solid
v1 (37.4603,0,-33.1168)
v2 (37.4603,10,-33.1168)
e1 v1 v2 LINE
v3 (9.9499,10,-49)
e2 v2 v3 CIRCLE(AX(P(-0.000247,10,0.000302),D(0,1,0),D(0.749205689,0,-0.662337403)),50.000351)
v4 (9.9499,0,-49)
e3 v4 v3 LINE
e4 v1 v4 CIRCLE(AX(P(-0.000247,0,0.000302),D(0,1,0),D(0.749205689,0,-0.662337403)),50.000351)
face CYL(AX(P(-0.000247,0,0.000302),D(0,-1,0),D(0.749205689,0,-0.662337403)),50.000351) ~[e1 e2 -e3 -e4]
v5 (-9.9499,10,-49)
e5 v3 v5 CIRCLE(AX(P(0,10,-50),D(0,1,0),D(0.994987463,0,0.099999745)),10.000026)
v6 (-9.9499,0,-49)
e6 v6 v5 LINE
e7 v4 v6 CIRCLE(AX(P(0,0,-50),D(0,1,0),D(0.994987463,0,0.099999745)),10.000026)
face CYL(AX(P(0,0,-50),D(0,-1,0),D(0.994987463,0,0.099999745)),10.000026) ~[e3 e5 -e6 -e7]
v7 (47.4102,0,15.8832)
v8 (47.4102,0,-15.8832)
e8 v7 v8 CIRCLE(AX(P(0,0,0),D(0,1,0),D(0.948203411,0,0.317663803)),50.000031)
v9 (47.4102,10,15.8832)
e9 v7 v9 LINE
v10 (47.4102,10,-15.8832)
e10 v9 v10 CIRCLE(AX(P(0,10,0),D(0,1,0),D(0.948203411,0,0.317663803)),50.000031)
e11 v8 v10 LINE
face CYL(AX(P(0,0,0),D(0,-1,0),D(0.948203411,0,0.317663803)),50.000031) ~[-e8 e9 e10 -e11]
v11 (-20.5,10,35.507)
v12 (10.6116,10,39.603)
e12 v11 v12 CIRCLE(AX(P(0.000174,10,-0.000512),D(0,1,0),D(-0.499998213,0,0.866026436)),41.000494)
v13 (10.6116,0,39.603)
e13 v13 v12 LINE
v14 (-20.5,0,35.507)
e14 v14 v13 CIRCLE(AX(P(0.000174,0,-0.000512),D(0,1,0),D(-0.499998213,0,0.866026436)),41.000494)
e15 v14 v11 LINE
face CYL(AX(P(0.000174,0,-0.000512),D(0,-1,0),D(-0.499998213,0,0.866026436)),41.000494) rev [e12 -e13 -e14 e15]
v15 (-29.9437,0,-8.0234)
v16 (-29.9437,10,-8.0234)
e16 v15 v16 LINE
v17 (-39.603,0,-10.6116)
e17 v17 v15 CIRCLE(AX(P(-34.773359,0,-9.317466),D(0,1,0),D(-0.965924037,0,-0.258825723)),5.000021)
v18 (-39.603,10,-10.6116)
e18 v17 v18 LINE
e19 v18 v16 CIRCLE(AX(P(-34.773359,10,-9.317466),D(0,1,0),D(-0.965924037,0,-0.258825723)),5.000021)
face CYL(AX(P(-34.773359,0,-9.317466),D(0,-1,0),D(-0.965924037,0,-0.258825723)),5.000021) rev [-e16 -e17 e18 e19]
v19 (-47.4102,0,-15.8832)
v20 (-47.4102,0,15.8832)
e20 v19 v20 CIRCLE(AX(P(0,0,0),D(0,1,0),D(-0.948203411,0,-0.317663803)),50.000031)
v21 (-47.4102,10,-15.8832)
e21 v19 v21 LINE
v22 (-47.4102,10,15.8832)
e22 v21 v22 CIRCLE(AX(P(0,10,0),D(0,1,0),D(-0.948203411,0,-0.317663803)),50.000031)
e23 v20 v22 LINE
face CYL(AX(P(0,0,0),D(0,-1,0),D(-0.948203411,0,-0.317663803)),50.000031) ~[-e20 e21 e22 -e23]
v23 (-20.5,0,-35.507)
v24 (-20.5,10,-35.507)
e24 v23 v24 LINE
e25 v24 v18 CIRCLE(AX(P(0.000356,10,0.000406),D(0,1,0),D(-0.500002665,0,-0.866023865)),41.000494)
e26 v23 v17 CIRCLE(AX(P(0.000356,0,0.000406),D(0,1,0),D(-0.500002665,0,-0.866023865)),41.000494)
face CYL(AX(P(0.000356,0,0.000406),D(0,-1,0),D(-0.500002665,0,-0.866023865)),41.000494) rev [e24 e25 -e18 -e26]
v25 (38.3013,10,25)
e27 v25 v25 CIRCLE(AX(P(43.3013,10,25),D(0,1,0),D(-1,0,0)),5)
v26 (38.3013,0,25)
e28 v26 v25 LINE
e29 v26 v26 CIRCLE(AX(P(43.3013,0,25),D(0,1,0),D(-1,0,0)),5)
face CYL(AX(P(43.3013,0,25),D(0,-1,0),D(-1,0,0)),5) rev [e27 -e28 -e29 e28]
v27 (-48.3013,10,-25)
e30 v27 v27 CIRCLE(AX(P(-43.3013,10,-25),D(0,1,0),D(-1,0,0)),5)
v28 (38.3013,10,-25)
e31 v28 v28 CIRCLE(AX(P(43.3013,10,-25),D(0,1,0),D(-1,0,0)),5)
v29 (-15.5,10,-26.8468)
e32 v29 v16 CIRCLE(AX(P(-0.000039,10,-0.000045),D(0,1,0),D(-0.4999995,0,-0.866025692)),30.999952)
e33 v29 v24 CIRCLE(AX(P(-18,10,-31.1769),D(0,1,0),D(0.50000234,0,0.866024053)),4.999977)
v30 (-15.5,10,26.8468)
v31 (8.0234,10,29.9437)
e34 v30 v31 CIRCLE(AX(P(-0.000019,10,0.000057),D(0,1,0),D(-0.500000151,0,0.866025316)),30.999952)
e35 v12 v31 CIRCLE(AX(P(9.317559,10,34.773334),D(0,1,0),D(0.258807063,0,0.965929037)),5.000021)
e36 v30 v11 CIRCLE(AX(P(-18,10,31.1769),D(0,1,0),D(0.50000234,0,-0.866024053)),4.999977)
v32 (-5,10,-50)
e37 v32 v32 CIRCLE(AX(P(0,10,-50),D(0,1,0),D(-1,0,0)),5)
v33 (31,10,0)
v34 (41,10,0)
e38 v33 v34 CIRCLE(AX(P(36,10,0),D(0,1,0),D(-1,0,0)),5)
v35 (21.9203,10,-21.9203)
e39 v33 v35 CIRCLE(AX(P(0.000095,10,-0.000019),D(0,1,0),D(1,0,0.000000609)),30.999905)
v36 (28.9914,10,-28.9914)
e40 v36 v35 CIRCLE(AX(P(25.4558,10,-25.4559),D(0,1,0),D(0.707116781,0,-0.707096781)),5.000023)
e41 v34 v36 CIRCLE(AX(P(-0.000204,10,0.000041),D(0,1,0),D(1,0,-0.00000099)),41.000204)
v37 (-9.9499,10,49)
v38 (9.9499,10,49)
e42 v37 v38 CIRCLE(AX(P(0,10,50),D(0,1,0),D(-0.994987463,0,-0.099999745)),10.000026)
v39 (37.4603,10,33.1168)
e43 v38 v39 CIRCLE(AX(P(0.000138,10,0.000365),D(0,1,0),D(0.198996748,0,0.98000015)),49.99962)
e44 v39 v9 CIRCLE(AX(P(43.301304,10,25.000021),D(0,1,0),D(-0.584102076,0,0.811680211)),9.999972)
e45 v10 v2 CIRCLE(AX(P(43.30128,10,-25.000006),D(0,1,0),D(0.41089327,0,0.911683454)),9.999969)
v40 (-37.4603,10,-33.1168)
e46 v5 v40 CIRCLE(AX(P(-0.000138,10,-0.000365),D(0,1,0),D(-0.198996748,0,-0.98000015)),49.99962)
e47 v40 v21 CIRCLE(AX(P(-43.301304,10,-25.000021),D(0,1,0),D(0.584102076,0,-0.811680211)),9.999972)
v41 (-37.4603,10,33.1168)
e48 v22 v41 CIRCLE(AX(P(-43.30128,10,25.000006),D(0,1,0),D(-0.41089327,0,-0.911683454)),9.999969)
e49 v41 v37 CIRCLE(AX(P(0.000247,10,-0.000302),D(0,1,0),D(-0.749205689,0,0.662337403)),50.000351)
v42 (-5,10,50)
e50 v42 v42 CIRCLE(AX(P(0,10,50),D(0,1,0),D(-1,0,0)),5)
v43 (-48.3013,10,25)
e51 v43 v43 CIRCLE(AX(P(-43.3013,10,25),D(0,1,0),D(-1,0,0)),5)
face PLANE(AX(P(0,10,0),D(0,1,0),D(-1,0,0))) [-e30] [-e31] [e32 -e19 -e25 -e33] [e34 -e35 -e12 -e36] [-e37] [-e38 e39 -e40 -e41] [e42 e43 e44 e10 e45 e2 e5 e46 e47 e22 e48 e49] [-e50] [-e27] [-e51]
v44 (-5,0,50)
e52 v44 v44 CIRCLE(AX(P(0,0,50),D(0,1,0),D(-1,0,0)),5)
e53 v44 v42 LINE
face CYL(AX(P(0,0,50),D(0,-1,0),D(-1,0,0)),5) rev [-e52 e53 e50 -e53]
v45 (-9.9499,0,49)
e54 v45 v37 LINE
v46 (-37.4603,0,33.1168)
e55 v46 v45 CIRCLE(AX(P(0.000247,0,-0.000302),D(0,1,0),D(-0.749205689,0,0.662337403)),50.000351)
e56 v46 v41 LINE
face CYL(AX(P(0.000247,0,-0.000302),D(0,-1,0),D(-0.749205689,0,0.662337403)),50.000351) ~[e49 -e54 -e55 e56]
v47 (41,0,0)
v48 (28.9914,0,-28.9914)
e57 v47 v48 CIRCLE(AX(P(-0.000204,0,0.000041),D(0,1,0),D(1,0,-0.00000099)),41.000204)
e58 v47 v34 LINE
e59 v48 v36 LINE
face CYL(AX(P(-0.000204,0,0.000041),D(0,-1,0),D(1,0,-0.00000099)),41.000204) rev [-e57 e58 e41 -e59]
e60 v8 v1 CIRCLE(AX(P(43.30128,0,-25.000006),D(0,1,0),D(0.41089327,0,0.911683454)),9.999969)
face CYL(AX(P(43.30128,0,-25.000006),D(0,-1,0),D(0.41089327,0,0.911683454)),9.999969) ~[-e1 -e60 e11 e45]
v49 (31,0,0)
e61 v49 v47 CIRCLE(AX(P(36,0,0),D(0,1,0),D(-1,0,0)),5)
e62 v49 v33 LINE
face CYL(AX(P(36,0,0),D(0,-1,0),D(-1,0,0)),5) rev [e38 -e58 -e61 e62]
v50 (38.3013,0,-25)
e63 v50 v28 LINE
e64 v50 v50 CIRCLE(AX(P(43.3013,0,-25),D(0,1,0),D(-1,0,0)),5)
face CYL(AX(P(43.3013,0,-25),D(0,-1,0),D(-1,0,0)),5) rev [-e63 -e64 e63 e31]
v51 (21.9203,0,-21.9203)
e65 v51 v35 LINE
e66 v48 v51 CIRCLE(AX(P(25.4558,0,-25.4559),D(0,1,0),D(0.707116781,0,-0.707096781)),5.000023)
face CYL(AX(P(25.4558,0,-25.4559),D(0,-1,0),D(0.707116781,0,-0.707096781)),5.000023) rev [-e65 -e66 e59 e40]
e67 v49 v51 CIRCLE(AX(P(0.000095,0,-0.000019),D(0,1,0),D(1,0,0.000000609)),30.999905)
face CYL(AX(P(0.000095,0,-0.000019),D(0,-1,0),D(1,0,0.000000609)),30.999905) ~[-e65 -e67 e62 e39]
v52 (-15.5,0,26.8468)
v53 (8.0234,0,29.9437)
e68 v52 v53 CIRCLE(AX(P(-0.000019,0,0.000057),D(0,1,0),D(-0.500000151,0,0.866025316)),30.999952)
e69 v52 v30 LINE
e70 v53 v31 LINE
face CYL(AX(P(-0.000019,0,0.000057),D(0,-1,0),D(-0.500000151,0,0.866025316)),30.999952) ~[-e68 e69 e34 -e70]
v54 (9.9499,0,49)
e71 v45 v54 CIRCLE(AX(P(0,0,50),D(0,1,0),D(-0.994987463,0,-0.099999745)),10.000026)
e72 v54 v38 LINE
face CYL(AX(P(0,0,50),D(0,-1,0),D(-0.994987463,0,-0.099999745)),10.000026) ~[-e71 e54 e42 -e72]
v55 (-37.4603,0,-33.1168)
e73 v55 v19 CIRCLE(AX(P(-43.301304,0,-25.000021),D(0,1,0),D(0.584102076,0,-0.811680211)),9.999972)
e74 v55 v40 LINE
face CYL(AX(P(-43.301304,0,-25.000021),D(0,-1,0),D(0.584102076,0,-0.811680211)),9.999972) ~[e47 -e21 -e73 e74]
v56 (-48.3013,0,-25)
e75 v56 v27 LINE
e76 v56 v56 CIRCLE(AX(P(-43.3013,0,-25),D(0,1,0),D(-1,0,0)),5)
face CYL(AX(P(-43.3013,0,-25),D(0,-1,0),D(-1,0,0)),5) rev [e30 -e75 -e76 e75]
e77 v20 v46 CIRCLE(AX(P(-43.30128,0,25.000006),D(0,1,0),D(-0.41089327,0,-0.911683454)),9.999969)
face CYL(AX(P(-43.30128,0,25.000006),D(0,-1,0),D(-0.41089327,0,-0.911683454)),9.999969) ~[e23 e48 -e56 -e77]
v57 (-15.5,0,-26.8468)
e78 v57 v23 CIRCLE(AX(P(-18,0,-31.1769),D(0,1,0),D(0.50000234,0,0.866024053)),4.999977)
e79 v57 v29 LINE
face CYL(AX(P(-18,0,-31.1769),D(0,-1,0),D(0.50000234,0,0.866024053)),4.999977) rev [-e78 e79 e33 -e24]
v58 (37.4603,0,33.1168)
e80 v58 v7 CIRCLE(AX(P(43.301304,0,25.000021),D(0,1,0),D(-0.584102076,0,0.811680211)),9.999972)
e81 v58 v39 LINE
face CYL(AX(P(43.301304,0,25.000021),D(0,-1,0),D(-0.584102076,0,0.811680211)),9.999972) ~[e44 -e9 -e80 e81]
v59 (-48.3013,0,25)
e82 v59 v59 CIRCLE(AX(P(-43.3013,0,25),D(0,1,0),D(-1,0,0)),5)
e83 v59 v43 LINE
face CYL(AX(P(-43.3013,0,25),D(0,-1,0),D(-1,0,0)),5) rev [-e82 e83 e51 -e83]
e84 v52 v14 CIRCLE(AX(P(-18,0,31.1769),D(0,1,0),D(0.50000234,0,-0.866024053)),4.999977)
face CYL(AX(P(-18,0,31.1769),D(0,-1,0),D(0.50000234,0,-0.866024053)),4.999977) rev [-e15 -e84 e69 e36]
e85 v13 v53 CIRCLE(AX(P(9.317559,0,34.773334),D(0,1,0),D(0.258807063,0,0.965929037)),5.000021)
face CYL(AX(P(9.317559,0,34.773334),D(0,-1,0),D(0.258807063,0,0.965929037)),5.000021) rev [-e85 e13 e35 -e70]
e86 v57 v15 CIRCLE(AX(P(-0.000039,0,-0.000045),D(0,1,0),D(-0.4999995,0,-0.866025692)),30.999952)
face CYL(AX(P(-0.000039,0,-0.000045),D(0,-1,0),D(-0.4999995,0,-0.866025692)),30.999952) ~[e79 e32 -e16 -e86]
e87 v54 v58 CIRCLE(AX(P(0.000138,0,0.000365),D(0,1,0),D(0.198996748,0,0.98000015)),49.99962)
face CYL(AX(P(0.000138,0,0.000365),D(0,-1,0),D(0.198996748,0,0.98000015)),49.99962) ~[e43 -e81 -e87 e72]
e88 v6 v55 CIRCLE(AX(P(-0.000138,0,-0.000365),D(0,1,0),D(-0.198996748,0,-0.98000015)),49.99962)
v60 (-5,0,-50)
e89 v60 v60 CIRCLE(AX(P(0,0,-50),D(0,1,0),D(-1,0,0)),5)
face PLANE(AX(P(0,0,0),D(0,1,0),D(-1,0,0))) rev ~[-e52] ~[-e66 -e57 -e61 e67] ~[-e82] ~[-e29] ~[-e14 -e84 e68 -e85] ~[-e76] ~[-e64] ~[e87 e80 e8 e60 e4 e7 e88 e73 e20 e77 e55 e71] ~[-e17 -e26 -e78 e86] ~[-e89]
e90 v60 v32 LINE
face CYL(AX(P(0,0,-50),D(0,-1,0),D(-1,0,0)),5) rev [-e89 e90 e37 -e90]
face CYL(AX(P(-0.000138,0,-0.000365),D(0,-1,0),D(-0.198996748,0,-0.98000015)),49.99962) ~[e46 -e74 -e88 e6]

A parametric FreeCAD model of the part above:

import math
import FreeCAD as App
import Part
import Sketcher

V = App.Vector
Q = App.Units.Quantity

doc = App.newDocument("Part")
body = doc.addObject("PartDesign::Body", "Body")

# Sketch on XZ plane
sketch1 = body.newObject("Sketcher::SketchObject", "Sketch")
sketch1.AttachmentSupport = (doc.getObject("XZ_Plane"), [""])
sketch1.MapMode = "FlatFace"
sketch1.addGeometry([
    Part.ArcOfCircle(Part.Circle(V(0, 0, 0), V(0, 0, 1), 50), math.radians(-79), math.radians(-41)),  # 0
    Part.ArcOfCircle(Part.Circle(V(0, -50, 0), V(0, 0, 1), 10), math.radians(174), math.radians(366)),  # 1
    Part.ArcOfCircle(Part.Circle(V(0, 0, 0), V(0, 0, 1), 50), math.radians(-139), math.radians(-101)),  # 2
    Part.ArcOfCircle(Part.Circle(V(-43.3, -25, 0), V(0, 0, 1), 10), math.radians(114), math.radians(306)),  # 3
    Part.ArcOfCircle(Part.Circle(V(0, 0, 0), V(0, 0, 1), 50), math.radians(161), math.radians(199)),  # 4
    Part.ArcOfCircle(Part.Circle(V(-43.3, 25, 0), V(0, 0, 1), 10), math.radians(54), math.radians(246)),  # 5
    Part.ArcOfCircle(Part.Circle(V(0, 0, 0), V(0, 0, 1), 50), math.radians(101), math.radians(139)),  # 6
    Part.ArcOfCircle(Part.Circle(V(0, 50, 0), V(0, 0, 1), 10), math.radians(-6), math.radians(186)),  # 7
    Part.ArcOfCircle(Part.Circle(V(0, 0, 0), V(0, 0, 1), 50), math.radians(41), math.radians(79)),  # 8
    Part.ArcOfCircle(Part.Circle(V(43.3, 25, 0), V(0, 0, 1), 10), math.radians(-66), math.radians(126)),  # 9
    Part.ArcOfCircle(Part.Circle(V(0, 0, 0), V(0, 0, 1), 50), math.radians(-19), math.radians(19)),  # 10
    Part.ArcOfCircle(Part.Circle(V(43.3, -25, 0), V(0, 0, 1), 10), math.radians(-126), math.radians(66)),  # 11
    Part.Circle(V(43.3, -25, 0), V(0, 0, 1), 5),  # 12
    Part.ArcOfCircle(Part.Circle(V(36, 0, 0), V(0, 0, 1), 5), math.radians(0), math.radians(180)),  # 13
    Part.ArcOfCircle(Part.Circle(V(0, 0, 0), V(0, 0, 1), 31), math.radians(-45), math.radians(0)),  # 14
    Part.ArcOfCircle(Part.Circle(V(25.5, -25.5, 0), V(0, 0, 1), 5), math.radians(135), math.radians(315)),  # 15
    Part.ArcOfCircle(Part.Circle(V(0, 0, 0), V(0, 0, 1), 41), math.radians(-45), math.radians(0)),  # 16
    Part.Circle(V(0, -50, 0), V(0, 0, 1), 5),  # 17
    Part.ArcOfCircle(Part.Circle(V(-18, -31.2, 0), V(0, 0, 1), 5), math.radians(-120), math.radians(60)),  # 18
    Part.ArcOfCircle(Part.Circle(V(0, 0, 0), V(0, 0, 1), 31), math.radians(-165), math.radians(-120)),  # 19
    Part.ArcOfCircle(Part.Circle(V(-34.8, -9.3, 0), V(0, 0, 1), 5), math.radians(15), math.radians(195)),  # 20
    Part.ArcOfCircle(Part.Circle(V(0, 0, 0), V(0, 0, 1), 41), math.radians(-165), math.radians(-120)),  # 21
    Part.Circle(V(-43.3, -25, 0), V(0, 0, 1), 5),  # 22
    Part.Circle(V(43.3, 25, 0), V(0, 0, 1), 5),  # 23
    Part.Circle(V(-43.3, 25, 0), V(0, 0, 1), 5),  # 24
    Part.ArcOfCircle(Part.Circle(V(-18, 31.2, 0), V(0, 0, 1), 5), math.radians(120), math.radians(300)),  # 25
    Part.ArcOfCircle(Part.Circle(V(0, 0, 0), V(0, 0, 1), 31), math.radians(75), math.radians(120)),  # 26
    Part.ArcOfCircle(Part.Circle(V(9.3, 34.8, 0), V(0, 0, 1), 5), math.radians(-105), math.radians(75)),  # 27
    Part.ArcOfCircle(Part.Circle(V(0, 0, 0), V(0, 0, 1), 41), math.radians(75), math.radians(120)),  # 28
    Part.Circle(V(0, 50, 0), V(0, 0, 1), 5),  # 29
], False)
sketch1.addConstraint([
    Sketcher.Constraint("Coincident", 0, 1, 1, 2),
    Sketcher.Constraint("Coincident", 1, 1, 2, 2),
    Sketcher.Constraint("Coincident", 2, 1, 3, 2),
    Sketcher.Constraint("Coincident", 3, 1, 4, 2),
    Sketcher.Constraint("Coincident", 4, 1, 5, 2),
    Sketcher.Constraint("Coincident", 5, 1, 6, 2),
    Sketcher.Constraint("Coincident", 6, 1, 7, 2),
    Sketcher.Constraint("Coincident", 7, 1, 8, 2),
    Sketcher.Constraint("Coincident", 8, 1, 9, 2),
    Sketcher.Constraint("Coincident", 9, 1, 10, 2),
    Sketcher.Constraint("Coincident", 10, 1, 11, 2),
    Sketcher.Constraint("Coincident", 11, 1, 0, 2),
    Sketcher.Constraint("Tangent", 13, 2, 14, 2),
    Sketcher.Constraint("Tangent", 14, 1, 15, 1),
    Sketcher.Constraint("Tangent", 15, 2, 16, 1),
    Sketcher.Constraint("Tangent", 16, 2, 13, 1),
    Sketcher.Constraint("Tangent", 18, 2, 19, 2),
    Sketcher.Constraint("Tangent", 19, 1, 20, 1),
    Sketcher.Constraint("Tangent", 20, 2, 21, 1),
    Sketcher.Constraint("Tangent", 21, 2, 18, 1),
    Sketcher.Constraint("Tangent", 25, 2, 26, 2),
    Sketcher.Constraint("Tangent", 26, 1, 27, 1),
    Sketcher.Constraint("Tangent", 27, 2, 28, 1),
    Sketcher.Constraint("Tangent", 28, 2, 25, 1),
    Sketcher.Constraint("Coincident", 0, 3, -1, 1),
    Sketcher.Constraint("Coincident", 2, 3, -1, 1),
    Sketcher.Constraint("Coincident", 4, 3, -1, 1),
    Sketcher.Constraint("Coincident", 6, 3, -1, 1),
    Sketcher.Constraint("Coincident", 8, 3, -1, 1),
    Sketcher.Constraint("Coincident", 10, 3, -1, 1),
    Sketcher.Constraint("Coincident", 14, 3, -1, 1),
    Sketcher.Constraint("Coincident", 16, 3, -1, 1),
    Sketcher.Constraint("Coincident", 19, 3, -1, 1),
    Sketcher.Constraint("Coincident", 21, 3, -1, 1),
    Sketcher.Constraint("Coincident", 26, 3, -1, 1),
    Sketcher.Constraint("Coincident", 28, 3, -1, 1),
    Sketcher.Constraint("Coincident", 12, 3, 11, 3),
    Sketcher.Constraint("Coincident", 17, 3, 1, 3),
    Sketcher.Constraint("Coincident", 22, 3, 3, 3),
    Sketcher.Constraint("Coincident", 23, 3, 9, 3),
    Sketcher.Constraint("Coincident", 24, 3, 5, 3),
    Sketcher.Constraint("Coincident", 29, 3, 7, 3),
    Sketcher.Constraint("Equal", 0, 2),
    Sketcher.Constraint("Equal", 1, 3),
    Sketcher.Constraint("Equal", 2, 4),
    Sketcher.Constraint("Equal", 3, 5),
    Sketcher.Constraint("Equal", 4, 6),
    Sketcher.Constraint("Equal", 5, 7),
    Sketcher.Constraint("Equal", 6, 8),
    Sketcher.Constraint("Equal", 7, 9),
    Sketcher.Constraint("Equal", 8, 10),
    Sketcher.Constraint("Equal", 9, 11),
    Sketcher.Constraint("Equal", 12, 13),
    Sketcher.Constraint("Equal", 15, 17),
    Sketcher.Constraint("Equal", 17, 18),
    Sketcher.Constraint("Equal", 14, 19),
    Sketcher.Constraint("Equal", 20, 22),
    Sketcher.Constraint("Equal", 22, 23),
    Sketcher.Constraint("Equal", 23, 24),
    Sketcher.Constraint("Equal", 24, 25),
    Sketcher.Constraint("Equal", 19, 26),
    Sketcher.Constraint("Equal", 27, 29),
    Sketcher.Constraint("Symmetric", 1, 3, 7, 3, -1, 1),
    Sketcher.Constraint("Symmetric", 3, 3, 9, 3, -1, 1),
    Sketcher.Constraint("Symmetric", 5, 3, 11, 3, -1, 1),
    Sketcher.Constraint("Symmetric", 5, 3, 9, 3, -2),
    Sketcher.Constraint("PointOnObject", 1, 3, -2),
    Sketcher.Constraint("PointOnObject", 13, 3, -1),
    Sketcher.Constraint("Vertical", 18, 3, 25, 3),
    Sketcher.Constraint("Diameter", 12, Q("10 mm")),
    Sketcher.Constraint("Radius", 0, Q("50 mm")),
    Sketcher.Constraint("Radius", 1, Q("10 mm")),
    Sketcher.Constraint("DistanceY", 1, 3, -1, 1, Q("50 mm")),
    Sketcher.Constraint("Radius", 14, Q("31 mm")),
    Sketcher.Constraint("DistanceY", 3, 3, 5, 3, Q("50 mm")),
    Sketcher.Constraint("DistanceX", 18, 3, -1, 1, Q("18 mm")),
    Sketcher.Constraint("DistanceY", 2, 1, 18, 3, Q("1.94 mm")),
    Sketcher.Constraint("DistanceX", 14, 1, 11, 1, Q("15.54 mm")),
    Sketcher.Constraint("DistanceX", 20, 2, -1, 1, Q("39.603 mm")),
    Sketcher.Constraint("DistanceY", -1, 1, 27, 2, Q("39.603 mm")),
])
pad1 = body.newObject("PartDesign::Pad", "Pad")
pad1.Profile = sketch1
pad1.Length = 10
pad1.Reversed = True

doc.recompute()
